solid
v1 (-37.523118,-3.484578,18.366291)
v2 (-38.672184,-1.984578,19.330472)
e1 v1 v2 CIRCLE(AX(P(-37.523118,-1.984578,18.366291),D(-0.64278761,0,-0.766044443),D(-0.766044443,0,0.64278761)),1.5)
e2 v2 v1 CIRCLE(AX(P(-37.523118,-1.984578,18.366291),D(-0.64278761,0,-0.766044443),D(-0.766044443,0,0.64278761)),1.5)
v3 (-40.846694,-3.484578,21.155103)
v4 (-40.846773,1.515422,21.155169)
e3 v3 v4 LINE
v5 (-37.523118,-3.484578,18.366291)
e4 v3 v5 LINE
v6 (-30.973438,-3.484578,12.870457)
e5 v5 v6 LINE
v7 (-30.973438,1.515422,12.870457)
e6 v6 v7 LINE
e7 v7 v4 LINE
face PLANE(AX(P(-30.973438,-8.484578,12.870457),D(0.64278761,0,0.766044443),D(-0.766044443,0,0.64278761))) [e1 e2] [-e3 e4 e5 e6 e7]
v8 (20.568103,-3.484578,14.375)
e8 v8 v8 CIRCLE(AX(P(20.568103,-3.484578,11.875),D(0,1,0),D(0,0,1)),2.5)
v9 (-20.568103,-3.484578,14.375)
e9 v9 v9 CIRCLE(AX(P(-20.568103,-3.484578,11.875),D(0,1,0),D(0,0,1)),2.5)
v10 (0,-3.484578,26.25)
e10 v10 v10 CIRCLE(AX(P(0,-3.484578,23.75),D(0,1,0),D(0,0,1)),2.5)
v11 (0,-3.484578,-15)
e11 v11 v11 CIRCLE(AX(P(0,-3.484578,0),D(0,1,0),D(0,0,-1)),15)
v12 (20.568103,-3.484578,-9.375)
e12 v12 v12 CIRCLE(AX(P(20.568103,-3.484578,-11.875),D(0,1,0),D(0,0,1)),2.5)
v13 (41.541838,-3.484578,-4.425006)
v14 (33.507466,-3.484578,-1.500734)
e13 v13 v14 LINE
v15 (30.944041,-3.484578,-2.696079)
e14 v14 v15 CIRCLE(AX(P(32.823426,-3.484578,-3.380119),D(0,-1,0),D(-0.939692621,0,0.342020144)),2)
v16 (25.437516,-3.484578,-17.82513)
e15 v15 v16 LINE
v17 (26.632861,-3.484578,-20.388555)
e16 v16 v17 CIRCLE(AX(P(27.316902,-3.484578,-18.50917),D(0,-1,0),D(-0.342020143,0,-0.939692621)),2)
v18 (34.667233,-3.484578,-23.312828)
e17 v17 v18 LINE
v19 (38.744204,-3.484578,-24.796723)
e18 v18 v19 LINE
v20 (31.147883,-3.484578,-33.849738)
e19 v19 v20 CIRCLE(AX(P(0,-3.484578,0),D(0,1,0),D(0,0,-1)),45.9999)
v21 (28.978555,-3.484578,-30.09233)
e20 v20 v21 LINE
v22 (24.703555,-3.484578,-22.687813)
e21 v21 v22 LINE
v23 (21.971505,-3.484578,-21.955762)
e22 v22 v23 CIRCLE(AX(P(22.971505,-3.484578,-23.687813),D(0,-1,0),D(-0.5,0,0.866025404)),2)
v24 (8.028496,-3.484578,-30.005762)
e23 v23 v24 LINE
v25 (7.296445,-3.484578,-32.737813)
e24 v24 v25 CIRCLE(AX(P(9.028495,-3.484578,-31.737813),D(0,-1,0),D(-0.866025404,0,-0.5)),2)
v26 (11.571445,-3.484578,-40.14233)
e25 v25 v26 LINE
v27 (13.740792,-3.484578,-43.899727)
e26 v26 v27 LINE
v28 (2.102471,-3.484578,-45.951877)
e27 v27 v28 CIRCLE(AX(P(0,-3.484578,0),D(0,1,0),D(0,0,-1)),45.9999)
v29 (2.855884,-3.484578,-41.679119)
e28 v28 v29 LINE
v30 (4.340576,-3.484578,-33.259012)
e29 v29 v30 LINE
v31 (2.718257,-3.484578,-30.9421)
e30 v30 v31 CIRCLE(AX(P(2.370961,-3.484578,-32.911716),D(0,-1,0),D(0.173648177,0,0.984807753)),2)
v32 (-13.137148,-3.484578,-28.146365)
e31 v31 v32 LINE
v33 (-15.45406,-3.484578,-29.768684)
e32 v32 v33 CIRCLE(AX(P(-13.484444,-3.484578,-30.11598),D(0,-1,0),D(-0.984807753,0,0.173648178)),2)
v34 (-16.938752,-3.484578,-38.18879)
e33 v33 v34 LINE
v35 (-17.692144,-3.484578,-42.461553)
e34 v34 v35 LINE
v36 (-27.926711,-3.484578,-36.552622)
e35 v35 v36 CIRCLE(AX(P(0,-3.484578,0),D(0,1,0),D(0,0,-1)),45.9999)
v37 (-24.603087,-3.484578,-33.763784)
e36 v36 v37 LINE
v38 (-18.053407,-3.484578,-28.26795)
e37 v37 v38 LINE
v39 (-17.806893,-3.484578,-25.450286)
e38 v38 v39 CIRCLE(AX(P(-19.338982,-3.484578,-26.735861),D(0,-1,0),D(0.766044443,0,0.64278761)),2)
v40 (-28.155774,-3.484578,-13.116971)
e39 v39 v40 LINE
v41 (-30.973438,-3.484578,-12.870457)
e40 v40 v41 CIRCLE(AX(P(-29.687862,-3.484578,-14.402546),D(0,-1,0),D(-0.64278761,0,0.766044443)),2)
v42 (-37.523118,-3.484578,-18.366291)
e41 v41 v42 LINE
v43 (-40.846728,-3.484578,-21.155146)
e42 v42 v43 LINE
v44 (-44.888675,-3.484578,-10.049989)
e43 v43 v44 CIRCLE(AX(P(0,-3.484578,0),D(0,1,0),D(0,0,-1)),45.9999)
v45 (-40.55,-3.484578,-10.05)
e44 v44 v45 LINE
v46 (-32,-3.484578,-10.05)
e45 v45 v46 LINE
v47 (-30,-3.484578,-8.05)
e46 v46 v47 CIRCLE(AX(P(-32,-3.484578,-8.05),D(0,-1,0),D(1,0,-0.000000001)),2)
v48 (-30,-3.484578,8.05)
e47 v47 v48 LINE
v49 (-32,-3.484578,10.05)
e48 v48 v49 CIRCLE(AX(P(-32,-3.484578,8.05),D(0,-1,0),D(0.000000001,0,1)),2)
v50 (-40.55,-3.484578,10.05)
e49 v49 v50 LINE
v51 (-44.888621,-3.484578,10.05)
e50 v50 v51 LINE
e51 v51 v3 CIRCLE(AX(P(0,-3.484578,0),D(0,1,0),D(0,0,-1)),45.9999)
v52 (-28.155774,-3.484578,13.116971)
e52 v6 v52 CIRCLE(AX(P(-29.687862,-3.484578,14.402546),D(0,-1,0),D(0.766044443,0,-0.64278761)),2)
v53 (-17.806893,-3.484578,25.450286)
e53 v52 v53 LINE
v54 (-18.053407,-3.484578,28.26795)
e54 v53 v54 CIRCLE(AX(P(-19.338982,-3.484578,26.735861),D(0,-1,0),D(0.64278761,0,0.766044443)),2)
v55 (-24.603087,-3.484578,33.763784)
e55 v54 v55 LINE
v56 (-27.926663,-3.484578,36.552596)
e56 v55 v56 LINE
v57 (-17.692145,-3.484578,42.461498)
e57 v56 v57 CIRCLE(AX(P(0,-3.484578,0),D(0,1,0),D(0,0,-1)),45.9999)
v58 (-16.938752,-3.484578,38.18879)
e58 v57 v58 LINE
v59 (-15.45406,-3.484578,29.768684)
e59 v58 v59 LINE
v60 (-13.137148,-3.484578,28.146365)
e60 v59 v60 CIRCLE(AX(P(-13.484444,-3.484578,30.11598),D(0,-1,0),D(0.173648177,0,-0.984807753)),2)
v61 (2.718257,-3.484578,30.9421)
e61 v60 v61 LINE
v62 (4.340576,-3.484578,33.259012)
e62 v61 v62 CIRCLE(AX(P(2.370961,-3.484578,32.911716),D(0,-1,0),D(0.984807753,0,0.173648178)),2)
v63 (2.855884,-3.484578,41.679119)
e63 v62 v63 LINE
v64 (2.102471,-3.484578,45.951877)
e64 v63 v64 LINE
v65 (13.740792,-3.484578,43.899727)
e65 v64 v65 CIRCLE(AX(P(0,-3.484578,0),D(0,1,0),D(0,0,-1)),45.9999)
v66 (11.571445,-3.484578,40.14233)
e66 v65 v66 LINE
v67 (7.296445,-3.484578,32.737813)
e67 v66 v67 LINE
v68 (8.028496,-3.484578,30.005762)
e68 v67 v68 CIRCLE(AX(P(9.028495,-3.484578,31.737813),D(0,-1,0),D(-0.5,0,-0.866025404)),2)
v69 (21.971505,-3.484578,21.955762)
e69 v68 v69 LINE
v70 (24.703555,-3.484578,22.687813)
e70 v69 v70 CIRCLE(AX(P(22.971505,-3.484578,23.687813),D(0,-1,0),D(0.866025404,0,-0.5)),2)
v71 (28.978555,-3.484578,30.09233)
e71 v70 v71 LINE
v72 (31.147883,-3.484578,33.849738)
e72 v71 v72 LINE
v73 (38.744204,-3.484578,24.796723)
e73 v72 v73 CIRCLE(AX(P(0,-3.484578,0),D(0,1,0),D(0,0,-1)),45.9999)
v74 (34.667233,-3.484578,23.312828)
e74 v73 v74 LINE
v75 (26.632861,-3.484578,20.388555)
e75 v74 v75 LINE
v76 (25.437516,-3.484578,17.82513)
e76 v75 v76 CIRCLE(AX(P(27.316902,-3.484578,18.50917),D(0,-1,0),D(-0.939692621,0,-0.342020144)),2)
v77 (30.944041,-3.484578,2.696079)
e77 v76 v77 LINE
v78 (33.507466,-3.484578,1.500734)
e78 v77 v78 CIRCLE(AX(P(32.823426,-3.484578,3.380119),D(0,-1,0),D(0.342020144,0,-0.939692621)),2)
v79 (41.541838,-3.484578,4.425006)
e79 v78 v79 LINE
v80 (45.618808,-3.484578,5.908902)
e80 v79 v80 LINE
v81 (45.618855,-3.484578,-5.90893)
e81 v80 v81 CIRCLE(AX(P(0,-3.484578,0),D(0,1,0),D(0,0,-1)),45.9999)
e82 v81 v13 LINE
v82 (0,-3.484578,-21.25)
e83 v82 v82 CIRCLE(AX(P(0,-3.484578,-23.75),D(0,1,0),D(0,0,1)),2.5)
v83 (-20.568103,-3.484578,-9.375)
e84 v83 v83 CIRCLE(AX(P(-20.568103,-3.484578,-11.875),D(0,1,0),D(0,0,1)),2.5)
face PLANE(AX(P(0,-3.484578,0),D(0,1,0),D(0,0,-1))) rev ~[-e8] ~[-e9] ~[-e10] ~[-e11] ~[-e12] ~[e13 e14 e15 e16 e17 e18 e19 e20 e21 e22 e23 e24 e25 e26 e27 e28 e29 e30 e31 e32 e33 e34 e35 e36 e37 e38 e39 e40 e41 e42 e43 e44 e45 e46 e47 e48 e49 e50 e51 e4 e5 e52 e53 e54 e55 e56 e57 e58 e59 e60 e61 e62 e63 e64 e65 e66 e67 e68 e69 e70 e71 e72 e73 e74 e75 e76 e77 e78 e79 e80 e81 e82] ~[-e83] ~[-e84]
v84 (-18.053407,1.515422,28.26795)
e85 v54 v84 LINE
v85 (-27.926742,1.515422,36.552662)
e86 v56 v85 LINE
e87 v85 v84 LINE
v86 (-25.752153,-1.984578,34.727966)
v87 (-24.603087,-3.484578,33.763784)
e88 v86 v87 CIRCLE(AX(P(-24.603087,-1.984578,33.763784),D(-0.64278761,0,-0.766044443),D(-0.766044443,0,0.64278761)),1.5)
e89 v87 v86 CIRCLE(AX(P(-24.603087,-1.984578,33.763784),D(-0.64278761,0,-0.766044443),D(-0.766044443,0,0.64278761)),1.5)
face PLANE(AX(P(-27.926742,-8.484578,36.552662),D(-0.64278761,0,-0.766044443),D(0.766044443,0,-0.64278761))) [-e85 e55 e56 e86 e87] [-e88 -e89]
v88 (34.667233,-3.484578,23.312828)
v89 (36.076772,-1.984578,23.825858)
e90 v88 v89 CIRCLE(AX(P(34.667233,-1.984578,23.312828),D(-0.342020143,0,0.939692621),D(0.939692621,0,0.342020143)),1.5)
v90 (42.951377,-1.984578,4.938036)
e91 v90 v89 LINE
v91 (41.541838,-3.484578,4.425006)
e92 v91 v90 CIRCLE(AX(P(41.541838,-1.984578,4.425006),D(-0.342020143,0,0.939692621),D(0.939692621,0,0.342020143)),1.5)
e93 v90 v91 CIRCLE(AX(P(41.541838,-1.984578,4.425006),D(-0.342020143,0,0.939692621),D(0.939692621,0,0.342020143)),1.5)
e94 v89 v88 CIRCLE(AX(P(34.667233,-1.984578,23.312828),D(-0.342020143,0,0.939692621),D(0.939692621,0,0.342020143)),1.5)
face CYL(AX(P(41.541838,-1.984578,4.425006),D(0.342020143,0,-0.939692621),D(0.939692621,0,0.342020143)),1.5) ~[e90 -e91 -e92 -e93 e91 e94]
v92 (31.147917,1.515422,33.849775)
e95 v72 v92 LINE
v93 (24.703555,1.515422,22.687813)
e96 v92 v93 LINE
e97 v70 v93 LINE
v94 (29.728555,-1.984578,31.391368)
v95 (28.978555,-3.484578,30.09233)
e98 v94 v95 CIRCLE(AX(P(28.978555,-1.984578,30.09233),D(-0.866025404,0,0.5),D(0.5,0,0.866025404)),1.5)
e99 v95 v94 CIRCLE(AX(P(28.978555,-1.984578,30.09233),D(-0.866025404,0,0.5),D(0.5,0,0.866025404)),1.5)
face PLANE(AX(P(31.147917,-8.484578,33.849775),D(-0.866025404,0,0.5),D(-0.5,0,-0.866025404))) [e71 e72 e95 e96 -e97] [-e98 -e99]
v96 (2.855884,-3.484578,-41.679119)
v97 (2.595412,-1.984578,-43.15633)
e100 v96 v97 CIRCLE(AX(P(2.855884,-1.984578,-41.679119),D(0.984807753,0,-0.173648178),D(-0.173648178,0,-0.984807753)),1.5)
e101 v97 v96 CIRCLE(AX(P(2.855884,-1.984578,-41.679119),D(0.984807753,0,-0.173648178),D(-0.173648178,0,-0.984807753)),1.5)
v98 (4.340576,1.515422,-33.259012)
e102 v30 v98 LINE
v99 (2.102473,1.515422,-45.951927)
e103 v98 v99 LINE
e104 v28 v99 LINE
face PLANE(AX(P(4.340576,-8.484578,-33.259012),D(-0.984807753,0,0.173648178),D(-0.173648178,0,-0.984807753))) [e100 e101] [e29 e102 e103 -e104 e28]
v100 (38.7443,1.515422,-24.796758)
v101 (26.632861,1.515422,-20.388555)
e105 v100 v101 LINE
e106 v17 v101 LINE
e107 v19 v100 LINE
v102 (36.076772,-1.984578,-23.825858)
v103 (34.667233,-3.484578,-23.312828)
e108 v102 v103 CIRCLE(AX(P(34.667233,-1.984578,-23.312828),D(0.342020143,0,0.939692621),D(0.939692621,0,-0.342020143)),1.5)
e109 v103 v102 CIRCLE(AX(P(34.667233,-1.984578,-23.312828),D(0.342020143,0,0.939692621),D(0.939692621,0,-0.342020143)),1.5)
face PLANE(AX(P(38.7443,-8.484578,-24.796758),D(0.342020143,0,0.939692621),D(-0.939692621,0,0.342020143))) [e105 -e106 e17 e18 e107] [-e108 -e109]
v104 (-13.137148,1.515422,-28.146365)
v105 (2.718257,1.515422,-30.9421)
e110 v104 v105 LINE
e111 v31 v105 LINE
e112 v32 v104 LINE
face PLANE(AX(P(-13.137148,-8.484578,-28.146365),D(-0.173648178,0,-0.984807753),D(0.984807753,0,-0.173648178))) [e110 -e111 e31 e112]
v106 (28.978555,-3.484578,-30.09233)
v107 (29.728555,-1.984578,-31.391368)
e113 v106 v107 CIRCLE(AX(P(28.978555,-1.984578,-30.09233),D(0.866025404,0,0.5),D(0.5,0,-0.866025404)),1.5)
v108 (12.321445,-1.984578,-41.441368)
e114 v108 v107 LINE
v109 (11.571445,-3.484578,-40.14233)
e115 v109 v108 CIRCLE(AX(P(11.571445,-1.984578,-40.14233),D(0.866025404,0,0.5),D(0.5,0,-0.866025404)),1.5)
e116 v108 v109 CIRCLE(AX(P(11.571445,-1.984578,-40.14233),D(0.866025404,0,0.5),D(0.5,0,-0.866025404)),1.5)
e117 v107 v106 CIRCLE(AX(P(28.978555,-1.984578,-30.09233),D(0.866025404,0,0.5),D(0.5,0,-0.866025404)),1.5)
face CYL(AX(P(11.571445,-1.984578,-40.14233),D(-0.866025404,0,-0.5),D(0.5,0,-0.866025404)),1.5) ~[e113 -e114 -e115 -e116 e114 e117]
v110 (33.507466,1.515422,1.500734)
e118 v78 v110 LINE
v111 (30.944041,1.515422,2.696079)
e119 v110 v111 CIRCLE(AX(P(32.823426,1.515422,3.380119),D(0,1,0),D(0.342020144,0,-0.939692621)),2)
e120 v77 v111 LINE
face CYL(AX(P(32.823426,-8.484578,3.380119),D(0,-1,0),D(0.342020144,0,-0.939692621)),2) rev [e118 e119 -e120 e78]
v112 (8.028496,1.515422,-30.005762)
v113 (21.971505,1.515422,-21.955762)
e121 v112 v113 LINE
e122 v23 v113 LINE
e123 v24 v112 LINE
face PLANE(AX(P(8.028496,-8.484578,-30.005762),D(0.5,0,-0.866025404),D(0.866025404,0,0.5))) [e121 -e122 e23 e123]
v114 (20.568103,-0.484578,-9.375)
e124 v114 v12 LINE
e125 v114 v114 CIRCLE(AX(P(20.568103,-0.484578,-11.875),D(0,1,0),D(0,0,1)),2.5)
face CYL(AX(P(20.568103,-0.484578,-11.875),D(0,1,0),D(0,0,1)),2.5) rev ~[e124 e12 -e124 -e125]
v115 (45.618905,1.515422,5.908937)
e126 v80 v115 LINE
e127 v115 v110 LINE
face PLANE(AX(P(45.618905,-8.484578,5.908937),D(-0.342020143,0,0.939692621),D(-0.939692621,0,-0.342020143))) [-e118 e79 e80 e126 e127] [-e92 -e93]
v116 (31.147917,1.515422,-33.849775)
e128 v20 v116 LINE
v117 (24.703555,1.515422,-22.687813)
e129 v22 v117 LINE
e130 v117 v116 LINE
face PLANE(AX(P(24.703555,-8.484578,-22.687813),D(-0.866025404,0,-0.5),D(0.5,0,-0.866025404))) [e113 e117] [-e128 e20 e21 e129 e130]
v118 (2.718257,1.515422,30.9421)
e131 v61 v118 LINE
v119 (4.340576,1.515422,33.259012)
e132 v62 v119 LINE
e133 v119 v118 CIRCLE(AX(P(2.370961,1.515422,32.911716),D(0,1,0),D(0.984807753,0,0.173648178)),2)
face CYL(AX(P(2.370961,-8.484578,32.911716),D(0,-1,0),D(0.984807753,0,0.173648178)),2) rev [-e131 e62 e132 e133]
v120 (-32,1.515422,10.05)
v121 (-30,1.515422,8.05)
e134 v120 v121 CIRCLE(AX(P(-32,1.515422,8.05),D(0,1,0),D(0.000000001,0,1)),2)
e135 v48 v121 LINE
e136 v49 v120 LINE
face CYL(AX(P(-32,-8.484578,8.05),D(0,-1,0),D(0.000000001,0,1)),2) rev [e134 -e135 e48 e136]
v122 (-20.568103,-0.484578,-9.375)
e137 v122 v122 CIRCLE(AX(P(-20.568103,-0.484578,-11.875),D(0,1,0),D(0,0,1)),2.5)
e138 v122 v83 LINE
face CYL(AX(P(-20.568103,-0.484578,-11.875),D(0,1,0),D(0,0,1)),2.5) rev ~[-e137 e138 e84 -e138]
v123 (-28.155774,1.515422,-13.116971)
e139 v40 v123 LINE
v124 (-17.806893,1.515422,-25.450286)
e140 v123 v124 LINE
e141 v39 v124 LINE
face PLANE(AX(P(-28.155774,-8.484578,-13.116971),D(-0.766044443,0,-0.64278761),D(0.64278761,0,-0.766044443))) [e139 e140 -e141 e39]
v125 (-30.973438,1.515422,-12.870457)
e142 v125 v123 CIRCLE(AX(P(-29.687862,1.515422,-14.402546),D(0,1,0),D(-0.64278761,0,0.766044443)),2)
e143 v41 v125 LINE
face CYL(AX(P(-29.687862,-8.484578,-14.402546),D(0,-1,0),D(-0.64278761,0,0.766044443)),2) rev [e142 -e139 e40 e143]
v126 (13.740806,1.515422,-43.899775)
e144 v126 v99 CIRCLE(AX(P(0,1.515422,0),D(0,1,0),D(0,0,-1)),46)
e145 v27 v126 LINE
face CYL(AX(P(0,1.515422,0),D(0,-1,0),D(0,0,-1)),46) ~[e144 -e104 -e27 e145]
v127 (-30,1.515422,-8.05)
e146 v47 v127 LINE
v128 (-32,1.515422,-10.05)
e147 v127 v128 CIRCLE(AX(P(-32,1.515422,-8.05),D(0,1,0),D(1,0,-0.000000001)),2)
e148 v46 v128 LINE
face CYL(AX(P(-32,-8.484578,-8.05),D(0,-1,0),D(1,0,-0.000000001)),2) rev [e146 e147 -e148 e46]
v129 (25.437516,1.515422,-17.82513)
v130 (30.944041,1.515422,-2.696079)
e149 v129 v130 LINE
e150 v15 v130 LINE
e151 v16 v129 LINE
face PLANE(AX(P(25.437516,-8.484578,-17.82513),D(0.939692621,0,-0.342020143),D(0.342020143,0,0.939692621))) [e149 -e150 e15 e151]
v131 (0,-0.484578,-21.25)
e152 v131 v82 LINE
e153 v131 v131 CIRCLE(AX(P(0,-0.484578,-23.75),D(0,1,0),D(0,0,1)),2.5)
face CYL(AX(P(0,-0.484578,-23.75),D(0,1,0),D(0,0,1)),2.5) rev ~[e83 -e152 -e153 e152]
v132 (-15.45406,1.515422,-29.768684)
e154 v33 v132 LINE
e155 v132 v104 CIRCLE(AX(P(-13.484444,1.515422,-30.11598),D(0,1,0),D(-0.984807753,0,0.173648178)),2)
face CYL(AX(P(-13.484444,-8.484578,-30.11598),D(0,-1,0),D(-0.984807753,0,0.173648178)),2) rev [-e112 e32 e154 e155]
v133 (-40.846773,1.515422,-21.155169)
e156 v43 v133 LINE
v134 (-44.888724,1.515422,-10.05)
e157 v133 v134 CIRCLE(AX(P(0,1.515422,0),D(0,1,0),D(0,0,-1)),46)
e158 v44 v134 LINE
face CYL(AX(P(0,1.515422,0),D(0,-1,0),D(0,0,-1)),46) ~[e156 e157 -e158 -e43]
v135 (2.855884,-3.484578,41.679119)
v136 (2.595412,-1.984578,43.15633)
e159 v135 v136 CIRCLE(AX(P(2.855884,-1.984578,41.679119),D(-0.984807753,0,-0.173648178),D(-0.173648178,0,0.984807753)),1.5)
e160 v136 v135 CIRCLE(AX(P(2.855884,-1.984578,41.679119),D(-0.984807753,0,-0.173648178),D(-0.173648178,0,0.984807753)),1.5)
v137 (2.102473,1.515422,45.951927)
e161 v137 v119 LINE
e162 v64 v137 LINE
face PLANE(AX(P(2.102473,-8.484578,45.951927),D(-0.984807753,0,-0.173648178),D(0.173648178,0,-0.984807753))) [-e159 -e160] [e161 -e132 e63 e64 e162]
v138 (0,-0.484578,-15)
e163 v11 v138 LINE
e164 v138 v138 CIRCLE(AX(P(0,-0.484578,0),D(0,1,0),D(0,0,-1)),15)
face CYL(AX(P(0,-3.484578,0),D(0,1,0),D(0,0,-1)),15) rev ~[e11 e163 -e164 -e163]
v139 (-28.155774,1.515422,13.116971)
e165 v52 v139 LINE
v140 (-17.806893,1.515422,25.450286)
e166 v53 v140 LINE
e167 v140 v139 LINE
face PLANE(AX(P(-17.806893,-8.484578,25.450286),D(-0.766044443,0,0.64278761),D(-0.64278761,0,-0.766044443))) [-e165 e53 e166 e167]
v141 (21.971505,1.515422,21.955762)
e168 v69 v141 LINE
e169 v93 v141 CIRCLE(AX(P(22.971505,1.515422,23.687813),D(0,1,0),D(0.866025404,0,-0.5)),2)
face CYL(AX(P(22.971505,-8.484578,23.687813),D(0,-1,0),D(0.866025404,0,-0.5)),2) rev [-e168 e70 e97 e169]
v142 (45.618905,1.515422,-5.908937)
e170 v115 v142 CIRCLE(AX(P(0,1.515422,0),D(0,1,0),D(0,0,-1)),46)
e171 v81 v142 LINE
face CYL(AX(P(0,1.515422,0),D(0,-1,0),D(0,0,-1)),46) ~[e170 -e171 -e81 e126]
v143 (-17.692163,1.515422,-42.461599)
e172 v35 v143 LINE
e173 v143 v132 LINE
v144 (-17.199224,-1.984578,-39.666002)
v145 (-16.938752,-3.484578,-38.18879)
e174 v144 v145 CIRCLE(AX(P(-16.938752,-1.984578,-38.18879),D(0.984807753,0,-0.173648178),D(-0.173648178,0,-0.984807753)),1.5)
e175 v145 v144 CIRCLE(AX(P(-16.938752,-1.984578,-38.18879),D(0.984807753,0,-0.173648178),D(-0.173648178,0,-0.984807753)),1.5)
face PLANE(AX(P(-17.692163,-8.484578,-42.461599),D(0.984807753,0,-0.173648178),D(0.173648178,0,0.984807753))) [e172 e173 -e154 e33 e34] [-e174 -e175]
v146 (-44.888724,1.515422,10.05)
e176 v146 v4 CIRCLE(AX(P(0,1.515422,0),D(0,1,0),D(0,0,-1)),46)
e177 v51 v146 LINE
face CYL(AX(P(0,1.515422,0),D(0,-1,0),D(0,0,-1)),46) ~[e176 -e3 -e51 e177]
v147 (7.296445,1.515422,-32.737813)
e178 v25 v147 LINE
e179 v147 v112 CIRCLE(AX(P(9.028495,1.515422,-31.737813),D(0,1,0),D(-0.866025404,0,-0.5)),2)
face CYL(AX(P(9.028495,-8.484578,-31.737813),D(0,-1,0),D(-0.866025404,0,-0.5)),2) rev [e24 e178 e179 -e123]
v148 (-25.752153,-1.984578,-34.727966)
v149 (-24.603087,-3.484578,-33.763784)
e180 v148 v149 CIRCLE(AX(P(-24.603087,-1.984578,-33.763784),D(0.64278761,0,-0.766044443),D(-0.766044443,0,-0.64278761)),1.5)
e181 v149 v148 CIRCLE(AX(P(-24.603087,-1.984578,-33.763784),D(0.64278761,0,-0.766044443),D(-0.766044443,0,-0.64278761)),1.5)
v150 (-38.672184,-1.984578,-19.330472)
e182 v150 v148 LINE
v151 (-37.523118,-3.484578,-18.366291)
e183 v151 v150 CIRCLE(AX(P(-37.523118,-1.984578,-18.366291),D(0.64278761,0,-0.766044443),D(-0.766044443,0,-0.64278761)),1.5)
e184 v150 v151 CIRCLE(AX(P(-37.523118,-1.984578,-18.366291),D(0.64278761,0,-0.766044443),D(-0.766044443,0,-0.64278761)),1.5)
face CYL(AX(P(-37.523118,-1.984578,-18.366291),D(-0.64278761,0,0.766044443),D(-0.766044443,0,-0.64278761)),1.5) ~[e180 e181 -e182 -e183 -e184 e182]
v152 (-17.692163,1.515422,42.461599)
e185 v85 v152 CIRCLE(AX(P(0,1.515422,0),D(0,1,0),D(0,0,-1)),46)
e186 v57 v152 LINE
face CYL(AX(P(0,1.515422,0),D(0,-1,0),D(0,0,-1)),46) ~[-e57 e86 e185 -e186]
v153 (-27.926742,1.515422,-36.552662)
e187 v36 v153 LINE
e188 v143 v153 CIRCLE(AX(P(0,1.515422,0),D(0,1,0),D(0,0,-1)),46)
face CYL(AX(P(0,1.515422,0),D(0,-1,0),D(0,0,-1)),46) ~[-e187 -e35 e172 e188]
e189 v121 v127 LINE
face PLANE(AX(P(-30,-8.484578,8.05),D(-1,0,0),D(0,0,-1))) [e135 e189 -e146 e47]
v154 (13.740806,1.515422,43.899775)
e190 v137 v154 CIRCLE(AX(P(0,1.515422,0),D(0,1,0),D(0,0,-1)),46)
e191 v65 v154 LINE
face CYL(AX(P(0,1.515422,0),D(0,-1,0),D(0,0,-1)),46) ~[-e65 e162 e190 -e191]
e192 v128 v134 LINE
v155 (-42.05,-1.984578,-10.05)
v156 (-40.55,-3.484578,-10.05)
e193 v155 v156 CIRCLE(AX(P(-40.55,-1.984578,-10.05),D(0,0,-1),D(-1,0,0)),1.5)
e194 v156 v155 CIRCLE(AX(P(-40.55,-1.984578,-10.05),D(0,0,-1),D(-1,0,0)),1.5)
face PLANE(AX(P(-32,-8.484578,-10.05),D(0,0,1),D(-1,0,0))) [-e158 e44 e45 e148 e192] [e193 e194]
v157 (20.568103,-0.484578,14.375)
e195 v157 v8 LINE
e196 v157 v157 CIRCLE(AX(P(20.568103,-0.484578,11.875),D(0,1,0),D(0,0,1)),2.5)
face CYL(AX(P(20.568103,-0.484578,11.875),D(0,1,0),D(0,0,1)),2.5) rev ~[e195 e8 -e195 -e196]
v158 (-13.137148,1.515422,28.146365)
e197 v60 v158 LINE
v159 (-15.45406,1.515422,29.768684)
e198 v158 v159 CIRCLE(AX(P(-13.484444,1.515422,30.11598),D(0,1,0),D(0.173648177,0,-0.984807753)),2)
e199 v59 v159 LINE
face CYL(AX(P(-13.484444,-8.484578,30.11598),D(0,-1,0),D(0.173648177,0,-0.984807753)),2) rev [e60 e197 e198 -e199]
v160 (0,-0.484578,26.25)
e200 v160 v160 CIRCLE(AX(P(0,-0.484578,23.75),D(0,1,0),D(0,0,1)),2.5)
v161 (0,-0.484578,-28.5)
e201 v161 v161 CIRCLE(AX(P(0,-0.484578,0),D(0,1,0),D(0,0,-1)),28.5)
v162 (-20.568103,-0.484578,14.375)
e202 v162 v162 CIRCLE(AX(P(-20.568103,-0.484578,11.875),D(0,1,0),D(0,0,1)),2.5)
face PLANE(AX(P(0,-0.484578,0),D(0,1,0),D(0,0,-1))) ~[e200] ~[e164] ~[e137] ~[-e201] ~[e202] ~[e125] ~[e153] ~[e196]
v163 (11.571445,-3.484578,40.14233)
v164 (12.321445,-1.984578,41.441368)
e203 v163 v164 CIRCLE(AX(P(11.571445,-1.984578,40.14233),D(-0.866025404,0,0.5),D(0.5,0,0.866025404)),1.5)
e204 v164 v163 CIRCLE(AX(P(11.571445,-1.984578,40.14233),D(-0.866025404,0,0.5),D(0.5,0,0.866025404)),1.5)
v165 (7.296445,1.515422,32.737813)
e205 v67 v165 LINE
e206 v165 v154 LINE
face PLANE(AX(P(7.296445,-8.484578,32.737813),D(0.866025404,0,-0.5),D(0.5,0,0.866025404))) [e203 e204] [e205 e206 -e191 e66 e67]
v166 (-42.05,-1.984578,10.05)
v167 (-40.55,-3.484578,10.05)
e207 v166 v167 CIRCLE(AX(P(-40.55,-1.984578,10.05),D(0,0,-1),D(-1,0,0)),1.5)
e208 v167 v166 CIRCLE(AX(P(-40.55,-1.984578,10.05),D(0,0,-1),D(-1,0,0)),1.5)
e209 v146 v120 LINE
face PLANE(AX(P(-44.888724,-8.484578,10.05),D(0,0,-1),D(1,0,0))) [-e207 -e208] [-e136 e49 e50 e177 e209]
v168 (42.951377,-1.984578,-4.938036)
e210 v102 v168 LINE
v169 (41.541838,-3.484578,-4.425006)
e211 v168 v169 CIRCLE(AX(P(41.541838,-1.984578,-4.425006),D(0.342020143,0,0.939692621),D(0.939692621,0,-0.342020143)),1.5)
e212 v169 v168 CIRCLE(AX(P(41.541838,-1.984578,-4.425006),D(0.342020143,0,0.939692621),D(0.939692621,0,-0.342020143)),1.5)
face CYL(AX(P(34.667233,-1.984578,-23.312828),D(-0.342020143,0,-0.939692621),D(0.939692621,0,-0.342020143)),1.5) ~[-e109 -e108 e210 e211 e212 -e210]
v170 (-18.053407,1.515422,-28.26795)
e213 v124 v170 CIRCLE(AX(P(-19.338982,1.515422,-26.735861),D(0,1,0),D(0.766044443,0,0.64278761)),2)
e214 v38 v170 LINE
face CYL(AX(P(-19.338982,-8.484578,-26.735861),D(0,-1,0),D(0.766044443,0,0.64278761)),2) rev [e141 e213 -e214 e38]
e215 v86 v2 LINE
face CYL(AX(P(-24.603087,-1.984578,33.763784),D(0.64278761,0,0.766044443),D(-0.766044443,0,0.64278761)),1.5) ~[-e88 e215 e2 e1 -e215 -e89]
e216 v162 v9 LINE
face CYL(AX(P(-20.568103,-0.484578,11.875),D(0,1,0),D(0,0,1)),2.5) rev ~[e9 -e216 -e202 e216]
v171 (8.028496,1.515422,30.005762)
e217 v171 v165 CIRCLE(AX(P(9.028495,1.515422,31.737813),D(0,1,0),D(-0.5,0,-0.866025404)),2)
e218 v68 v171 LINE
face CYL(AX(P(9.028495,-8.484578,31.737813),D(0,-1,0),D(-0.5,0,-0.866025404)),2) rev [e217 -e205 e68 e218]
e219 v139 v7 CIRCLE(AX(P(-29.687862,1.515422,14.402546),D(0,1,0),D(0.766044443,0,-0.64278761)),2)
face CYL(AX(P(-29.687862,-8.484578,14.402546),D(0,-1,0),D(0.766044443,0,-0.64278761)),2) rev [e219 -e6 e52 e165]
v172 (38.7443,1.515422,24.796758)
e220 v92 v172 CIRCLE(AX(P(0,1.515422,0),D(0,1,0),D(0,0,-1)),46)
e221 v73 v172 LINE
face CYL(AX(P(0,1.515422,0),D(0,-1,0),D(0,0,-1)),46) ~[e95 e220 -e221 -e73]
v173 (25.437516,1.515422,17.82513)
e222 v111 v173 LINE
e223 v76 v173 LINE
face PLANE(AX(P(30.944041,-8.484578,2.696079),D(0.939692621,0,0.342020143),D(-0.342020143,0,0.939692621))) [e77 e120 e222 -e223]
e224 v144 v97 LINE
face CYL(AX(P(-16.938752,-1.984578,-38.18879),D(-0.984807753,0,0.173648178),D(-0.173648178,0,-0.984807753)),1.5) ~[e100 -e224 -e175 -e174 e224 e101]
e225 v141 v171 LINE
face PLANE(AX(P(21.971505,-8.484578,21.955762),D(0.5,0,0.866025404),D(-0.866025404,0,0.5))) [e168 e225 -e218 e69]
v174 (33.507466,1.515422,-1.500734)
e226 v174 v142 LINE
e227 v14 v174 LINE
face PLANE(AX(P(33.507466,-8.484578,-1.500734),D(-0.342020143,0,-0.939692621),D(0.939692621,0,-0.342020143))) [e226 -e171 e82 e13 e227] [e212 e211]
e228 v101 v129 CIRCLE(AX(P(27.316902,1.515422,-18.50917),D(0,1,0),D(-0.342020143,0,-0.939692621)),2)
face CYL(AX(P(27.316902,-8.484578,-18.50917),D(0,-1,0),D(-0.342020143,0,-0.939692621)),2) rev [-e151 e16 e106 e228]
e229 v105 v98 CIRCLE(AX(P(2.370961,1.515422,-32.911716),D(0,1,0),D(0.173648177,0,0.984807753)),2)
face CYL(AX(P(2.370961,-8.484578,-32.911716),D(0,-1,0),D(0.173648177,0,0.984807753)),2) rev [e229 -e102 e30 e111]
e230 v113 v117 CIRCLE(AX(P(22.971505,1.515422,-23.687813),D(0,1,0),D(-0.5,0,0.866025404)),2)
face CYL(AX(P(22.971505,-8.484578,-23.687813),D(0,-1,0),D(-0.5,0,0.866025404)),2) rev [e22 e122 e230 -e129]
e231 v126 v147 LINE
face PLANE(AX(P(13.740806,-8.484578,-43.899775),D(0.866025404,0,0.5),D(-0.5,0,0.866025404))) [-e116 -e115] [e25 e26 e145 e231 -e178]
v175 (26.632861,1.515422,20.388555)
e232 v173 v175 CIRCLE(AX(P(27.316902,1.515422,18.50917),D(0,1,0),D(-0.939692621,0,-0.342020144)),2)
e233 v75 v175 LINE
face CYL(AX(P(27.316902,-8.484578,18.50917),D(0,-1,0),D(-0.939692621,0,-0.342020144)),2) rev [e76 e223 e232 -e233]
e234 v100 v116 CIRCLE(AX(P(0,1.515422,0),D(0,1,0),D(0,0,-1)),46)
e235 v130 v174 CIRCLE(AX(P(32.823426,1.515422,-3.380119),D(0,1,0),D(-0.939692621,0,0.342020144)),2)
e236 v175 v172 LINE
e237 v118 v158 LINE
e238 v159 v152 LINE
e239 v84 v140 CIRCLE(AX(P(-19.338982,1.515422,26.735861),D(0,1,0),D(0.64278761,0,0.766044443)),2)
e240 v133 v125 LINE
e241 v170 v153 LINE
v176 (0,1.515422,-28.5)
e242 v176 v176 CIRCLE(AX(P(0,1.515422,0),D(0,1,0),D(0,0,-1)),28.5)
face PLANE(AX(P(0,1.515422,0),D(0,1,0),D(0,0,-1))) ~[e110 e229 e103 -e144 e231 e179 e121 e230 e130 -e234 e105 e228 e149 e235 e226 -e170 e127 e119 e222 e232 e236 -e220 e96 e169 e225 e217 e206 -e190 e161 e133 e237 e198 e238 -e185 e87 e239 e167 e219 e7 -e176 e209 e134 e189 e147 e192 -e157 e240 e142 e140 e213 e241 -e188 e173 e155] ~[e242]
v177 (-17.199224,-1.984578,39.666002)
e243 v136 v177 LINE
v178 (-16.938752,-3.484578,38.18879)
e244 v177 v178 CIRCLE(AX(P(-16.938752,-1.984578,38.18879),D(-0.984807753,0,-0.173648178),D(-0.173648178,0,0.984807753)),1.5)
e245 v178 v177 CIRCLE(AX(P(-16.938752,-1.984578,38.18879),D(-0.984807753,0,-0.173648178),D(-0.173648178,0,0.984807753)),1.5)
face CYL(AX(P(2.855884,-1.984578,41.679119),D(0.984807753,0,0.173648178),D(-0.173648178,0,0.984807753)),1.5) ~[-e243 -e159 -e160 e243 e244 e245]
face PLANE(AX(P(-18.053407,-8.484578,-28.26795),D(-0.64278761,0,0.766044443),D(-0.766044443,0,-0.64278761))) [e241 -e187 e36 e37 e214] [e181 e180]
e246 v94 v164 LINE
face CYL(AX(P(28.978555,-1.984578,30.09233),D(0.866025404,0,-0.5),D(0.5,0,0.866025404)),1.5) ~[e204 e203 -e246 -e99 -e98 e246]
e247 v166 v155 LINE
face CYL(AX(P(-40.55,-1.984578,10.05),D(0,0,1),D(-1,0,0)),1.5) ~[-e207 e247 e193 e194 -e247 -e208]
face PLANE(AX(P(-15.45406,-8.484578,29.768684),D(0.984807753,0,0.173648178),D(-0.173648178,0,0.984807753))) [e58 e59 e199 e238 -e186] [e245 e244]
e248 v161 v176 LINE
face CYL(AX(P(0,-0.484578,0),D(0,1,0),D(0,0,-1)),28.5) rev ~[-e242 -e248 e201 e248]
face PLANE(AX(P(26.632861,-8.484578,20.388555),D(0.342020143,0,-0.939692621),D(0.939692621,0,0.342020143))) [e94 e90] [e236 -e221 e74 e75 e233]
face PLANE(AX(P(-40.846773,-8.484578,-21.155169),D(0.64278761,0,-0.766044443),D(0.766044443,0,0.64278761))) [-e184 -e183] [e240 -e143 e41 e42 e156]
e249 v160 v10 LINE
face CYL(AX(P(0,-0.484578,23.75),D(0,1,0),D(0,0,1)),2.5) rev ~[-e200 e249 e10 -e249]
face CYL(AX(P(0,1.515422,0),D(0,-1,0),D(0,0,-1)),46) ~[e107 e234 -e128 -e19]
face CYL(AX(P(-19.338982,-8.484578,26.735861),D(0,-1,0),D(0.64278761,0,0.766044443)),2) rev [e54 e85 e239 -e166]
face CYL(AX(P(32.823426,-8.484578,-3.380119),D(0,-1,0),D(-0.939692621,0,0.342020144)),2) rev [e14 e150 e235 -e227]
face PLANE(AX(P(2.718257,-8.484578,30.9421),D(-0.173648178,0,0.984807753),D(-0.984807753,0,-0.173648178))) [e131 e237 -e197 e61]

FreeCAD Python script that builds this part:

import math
import FreeCAD as App
import Part
import Sketcher

V = App.Vector
Q = App.Units.Quantity


def add_polygon(sketch, points):
    """Adds a closed chain of lines whose ends are joined by coincident constraints."""
    first, n = sketch.GeometryCount, len(points)
    for a, b in zip(points, points[1:] + points[:1]):
        sketch.addGeometry(Part.LineSegment(App.Vector(*a, 0), App.Vector(*b, 0)), False)
    for i in range(n):
        sketch.addConstraint(Sketcher.Constraint("Coincident", first + i, 2, first + (i + 1) % n, 1))

doc = App.newDocument("Part")
params = doc.addObject("Spreadsheet::Sheet", "Params")
for row, (alias, value) in enumerate([
    ("sketch1_height", "3 mm"),
    ("sketch1_height2", "2 mm"),
    ("sketch1_width", "13.5 mm"),
    ("sketch1_width2", "17.5 mm"),
    ("revolution_angle", "360 deg"),
    ("sketch2_diameter", "5 mm"),
    ("pocket1_length", "10 mm"),
    ("sketch3_radius", "46 mm"),
    ("sketch3_radius2", "2 mm"),
    ("sketch3_height", "16.1 mm"),
    ("sketch3_length", "16.1 mm"),
    ("pocket2_length", "10 mm"),
    ("sketch4_diameter", "3 mm"),
    ("pad1_length", "20.1 mm"),
    ("pocket3_length", "2 mm"),
], start=1):
    params.set(f"A{row}", alias)
    params.set(f"B{row}", "=" + value)
    params.setAlias(f"B{row}", alias)

body = doc.addObject("PartDesign::Body", "Body")

# Sketch on XY plane
sketch1 = body.newObject("Sketcher::SketchObject", "Sketch")
sketch1.AttachmentSupport = (doc.getObject("XY_Plane"), [""])
sketch1.MapMode = "FlatFace"
add_polygon(sketch1, [(-15, -3.5), (-15, -0.5), (-28.5, -0.5), (-28.5, 1.5), (-46, 1.5), (-46, -0.5), (-46, -3.5), (-46, -5.5), (-28.5, -5.5), (-28.5, -3.5)])  # lines 0-9
sketch1.addConstraint(Sketcher.Constraint("Vertical", 0))
sketch1.addConstraint(Sketcher.Constraint("Horizontal", 1))
sketch1.addConstraint(Sketcher.Constraint("Vertical", 2))
sketch1.addConstraint(Sketcher.Constraint("Horizontal", 3))
sketch1.addConstraint(Sketcher.Constraint("Vertical", 4))
sketch1.addConstraint(Sketcher.Constraint("Horizontal", 7))
sketch1.addConstraint(Sketcher.Constraint("Vertical", 8))
sketch1.addConstraint(Sketcher.Constraint("Horizontal", 9))
sketch1.addConstraint(Sketcher.Constraint("Horizontal", 1, 2, 4, 2))
sketch1.addConstraint(Sketcher.Constraint("Horizontal", 5, 2, 8, 2))
sketch1.addConstraint(Sketcher.Constraint("Vertical", 4, 2, 6, 2))
sketch1.addConstraint(Sketcher.Constraint("Vertical", 2, 2, 7, 2))
sketch1.addConstraint(Sketcher.Constraint("Equal", 4, 8))
sketch1.addConstraint(Sketcher.Constraint("DistanceY", 0, 1, 0, 2, 3.0))
sketch1.addConstraint(Sketcher.Constraint("DistanceY", 2, 1, 2, 2, 2.0))
sketch1.addConstraint(Sketcher.Constraint("DistanceX", 1, 2, 1, 1, 13.5))
sketch1.addConstraint(Sketcher.Constraint("DistanceX", 3, 2, 3, 1, 17.5))
sketch1.addConstraint(Sketcher.Constraint("DistanceX", 0, 2, -1, 1, 15.0))
sketch1.addConstraint(Sketcher.Constraint("DistanceX", 5, 2, -1, 1, 45.9999))
sketch1.addConstraint(Sketcher.Constraint("DistanceY", 0, 2, -1, 1, 0.484578))
sketch1.setExpression("Constraints[23]", "Params.sketch1_height")
sketch1.setExpression("Constraints[24]", "Params.sketch1_height2")
sketch1.setExpression("Constraints[25]", "Params.sketch1_width")
sketch1.setExpression("Constraints[26]", "Params.sketch1_width2")
revolution = body.newObject("PartDesign::Revolution", "Revolution")
revolution.Profile = sketch1
revolution.ReferenceAxis = (sketch1, ["V_Axis"])
revolution.setExpression("Angle", "Params.revolution_angle")

# Sketch on XZ plane
sketch2 = body.newObject("Sketcher::SketchObject", "Sketch001")
sketch2.AttachmentSupport = (doc.getObject("XZ_Plane"), [""])
sketch2.MapMode = "FlatFace"
sketch2.AttachmentOffset = App.Placement(V(0, 0, 0.484578), App.Rotation())
sketch2.addGeometry(Part.Circle(V(0, -23.8, 0), V(0, 0, 1), 2.5), False)
sketch2.addGeometry(Part.Circle(V(20.6, -11.9, 0), V(0, 0, 1), 2.5), False)
sketch2.addGeometry(Part.Circle(V(20.6, 11.9, 0), V(0, 0, 1), 2.5), False)
sketch2.addGeometry(Part.Circle(V(0, 23.8, 0), V(0, 0, 1), 2.5), False)
sketch2.addGeometry(Part.Circle(V(-20.6, 11.9, 0), V(0, 0, 1), 2.5), False)
sketch2.addGeometry(Part.Circle(V(-20.6, -11.9, 0), V(0, 0, 1), 2.5), False)
sketch2.addConstraint(Sketcher.Constraint("Equal", 0, 1))
sketch2.addConstraint(Sketcher.Constraint("Equal", 1, 2))
sketch2.addConstraint(Sketcher.Constraint("Equal", 2, 3))
sketch2.addConstraint(Sketcher.Constraint("Equal", 3, 4))
sketch2.addConstraint(Sketcher.Constraint("Equal", 4, 5))
sketch2.addConstraint(Sketcher.Constraint("Symmetric", 0, 3, 3, 3, -1, 1))
sketch2.addConstraint(Sketcher.Constraint("Symmetric", 1, 3, 4, 3, -1, 1))
sketch2.addConstraint(Sketcher.Constraint("Symmetric", 2, 3, 5, 3, -1, 1))
sketch2.addConstraint(Sketcher.Constraint("Symmetric", 2, 3, 4, 3, -2))
sketch2.addConstraint(Sketcher.Constraint("PointOnObject", 0, 3, -2))
sketch2.addConstraint(Sketcher.Constraint("Diameter", 0, 5.0))
sketch2.addConstraint(Sketcher.Constraint("DistanceY", 0, 3, 3, 3, 47.5))
sketch2.addConstraint(Sketcher.Constraint("DistanceY", 1, 3, 2, 3, 23.75))
sketch2.addConstraint(Sketcher.Constraint("DistanceX", -1, 1, 1, 3, 20.568103))
sketch2.setExpression("Constraints[10]", "Params.sketch2_diameter")
pocket1 = body.newObject("PartDesign::Pocket", "Pocket")
pocket1.Profile = sketch2
pocket1.setExpression("Length", "Params.pocket1_length")
pocket1.Reversed = True

# Sketch on XZ plane
sketch3 = body.newObject("Sketcher::SketchObject", "Sketch002")
sketch3.AttachmentSupport = (doc.getObject("XZ_Plane"), [""])
sketch3.MapMode = "FlatFace"
sketch3.AttachmentOffset = App.Placement(V(0, 0, 8.484578), App.Rotation())
sketch3.addGeometry(Part.LineSegment(V(4.3, -33.3, 0), V(2.1, -46, 0)), False)
sketch3.addGeometry(Part.ArcOfCircle(Part.Circle(V(0, 0, 0), V(0, 0, 1), 46), math.radians(-113), math.radians(-87)), False)
sketch3.addGeometry(Part.LineSegment(V(-17.7, -42.5, 0), V(-15.5, -29.8, 0)), False)
sketch3.addGeometry(Part.ArcOfCircle(Part.Circle(V(-13.5, -30.1, 0), V(0, 0, 1), 2), math.radians(80), math.radians(170)), False)
sketch3.addGeometry(Part.LineSegment(V(-13.1, -28.1, 0), V(2.7, -30.9, 0)), False)
sketch3.addGeometry(Part.ArcOfCircle(Part.Circle(V(2.4, -32.9, 0), V(0, 0, 1), 2), math.radians(-10), math.radians(80)), False)
sketch3.addGeometry(Part.LineSegment(V(8, -30, 0), V(22, -22, 0)), False)
sketch3.addGeometry(Part.ArcOfCircle(Part.Circle(V(23, -23.7, 0), V(0, 0, 1), 2), math.radians(30), math.radians(120)), False)
sketch3.addGeometry(Part.LineSegment(V(24.7, -22.7, 0), V(31.1, -33.8, 0)), False)
sketch3.addGeometry(Part.ArcOfCircle(Part.Circle(V(0, 0, 0), V(0, 0, 1), 46), math.radians(-73), math.radians(-47)), False)
sketch3.addGeometry(Part.LineSegment(V(13.7, -43.9, 0), V(7.3, -32.7, 0)), False)
sketch3.addGeometry(Part.ArcOfCircle(Part.Circle(V(9, -31.7, 0), V(0, 0, 1), 2), math.radians(120), math.radians(210)), False)
sketch3.addGeometry(Part.ArcOfCircle(Part.Circle(V(0, 0, 0), V(0, 0, 1), 46), math.radians(-33), math.radians(-7)), False)
sketch3.addGeometry(Part.LineSegment(V(38.7, -24.8, 0), V(26.6, -20.4, 0)), False)
sketch3.addGeometry(Part.ArcOfCircle(Part.Circle(V(27.3, -18.5, 0), V(0, 0, 1), 2), math.radians(160), math.radians(250)), False)
sketch3.addGeometry(Part.LineSegment(V(25.4, -17.8, 0), V(30.9, -2.7, 0)), False)
sketch3.addGeometry(Part.ArcOfCircle(Part.Circle(V(32.8, -3.4, 0), V(0, 0, 1), 2), math.radians(70), math.radians(160)), False)
sketch3.addGeometry(Part.LineSegment(V(33.5, -1.5, 0), V(45.6, -5.9, 0)), False)
sketch3.addGeometry(Part.ArcOfCircle(Part.Circle(V(0, 0, 0), V(0, 0, 1), 46), math.radians(7), math.radians(33)), False)
sketch3.addGeometry(Part.LineSegment(V(45.6, 5.9, 0), V(33.5, 1.5, 0)), False)
sketch3.addGeometry(Part.ArcOfCircle(Part.Circle(V(32.8, 3.4, 0), V(0, 0, 1), 2), math.radians(-160), math.radians(-70)), False)
sketch3.addGeometry(Part.LineSegment(V(30.9, 2.7, 0), V(25.4, 17.8, 0)), False)
sketch3.addGeometry(Part.ArcOfCircle(Part.Circle(V(27.3, 18.5, 0), V(0, 0, 1), 2), math.radians(110), math.radians(200)), False)
sketch3.addGeometry(Part.LineSegment(V(26.6, 20.4, 0), V(38.7, 24.8, 0)), False)
sketch3.addGeometry(Part.ArcOfCircle(Part.Circle(V(0, 0, 0), V(0, 0, 1), 46), math.radians(47), math.radians(73)), False)
sketch3.addGeometry(Part.LineSegment(V(31.1, 33.8, 0), V(24.7, 22.7, 0)), False)
sketch3.addGeometry(Part.ArcOfCircle(Part.Circle(V(23, 23.7, 0), V(0, 0, 1), 2), math.radians(-120), math.radians(-30)), False)
sketch3.addGeometry(Part.LineSegment(V(22, 22, 0), V(8, 30, 0)), False)
sketch3.addGeometry(Part.ArcOfCircle(Part.Circle(V(9, 31.7, 0), V(0, 0, 1), 2), math.radians(150), math.radians(240)), False)
sketch3.addGeometry(Part.LineSegment(V(7.3, 32.7, 0), V(13.7, 43.9, 0)), False)
sketch3.addGeometry(Part.ArcOfCircle(Part.Circle(V(0, 0, 0), V(0, 0, 1), 46), math.radians(87), math.radians(113)), False)
sketch3.addGeometry(Part.LineSegment(V(2.1, 46, 0), V(4.3, 33.3, 0)), False)
sketch3.addGeometry(Part.ArcOfCircle(Part.Circle(V(2.4, 32.9, 0), V(0, 0, 1), 2), math.radians(-80), math.radians(10)), False)
sketch3.addGeometry(Part.LineSegment(V(2.7, 30.9, 0), V(-13.1, 28.1, 0)), False)
sketch3.addGeometry(Part.ArcOfCircle(Part.Circle(V(-13.5, 30.1, 0), V(0, 0, 1), 2), math.radians(-170), math.radians(-80)), False)
sketch3.addGeometry(Part.LineSegment(V(-15.5, 29.8, 0), V(-17.7, 42.5, 0)), False)
sketch3.addGeometry(Part.LineSegment(V(-31, 12.9, 0), V(-40.8, 21.2, 0)), False)
sketch3.addGeometry(Part.ArcOfCircle(Part.Circle(V(0, 0, 0), V(0, 0, 1), 46), math.radians(127), math.radians(153)), False)
sketch3.addGeometry(Part.LineSegment(V(-27.9, 36.6, 0), V(-18.1, 28.3, 0)), False)
sketch3.addGeometry(Part.ArcOfCircle(Part.Circle(V(-19.3, 26.7, 0), V(0, 0, 1), 2), math.radians(-40), math.radians(50)), False)
sketch3.addGeometry(Part.LineSegment(V(-17.8, 25.5, 0), V(-28.2, 13.1, 0)), False)
sketch3.addGeometry(Part.ArcOfCircle(Part.Circle(V(-29.7, 14.4, 0), V(0, 0, 1), 2), math.radians(-130), math.radians(-40)), False)
sketch3.addGeometry(Part.LineSegment(V(-32, -10.1, 0), V(-44.9, -10.1, 0)), False)
sketch3.addGeometry(Part.ArcOfCircle(Part.Circle(V(0, 0, 0), V(0, 0, 1), 46), math.radians(167), math.radians(193)), False)
sketch3.addGeometry(Part.LineSegment(V(-44.9, 10.1, 0), V(-32, 10.1, 0)), False)
sketch3.addGeometry(Part.ArcOfCircle(Part.Circle(V(-32, 8, 0), V(0, 0, 1), 2), math.radians(0), math.radians(90)), False)
sketch3.addGeometry(Part.LineSegment(V(-30, 8.1, 0), V(-30, -8.1, 0)), False)
sketch3.addGeometry(Part.ArcOfCircle(Part.Circle(V(-32, -8, 0), V(0, 0, 1), 2), math.radians(-90), math.radians(0)), False)
sketch3.addGeometry(Part.LineSegment(V(-18.1, -28.3, 0), V(-27.9, -36.6, 0)), False)
sketch3.addGeometry(Part.ArcOfCircle(Part.Circle(V(0, 0, 0), V(0, 0, 1), 46), math.radians(-153), math.radians(-127)), False)
sketch3.addGeometry(Part.LineSegment(V(-40.8, -21.2, 0), V(-31, -12.9, 0)), False)
sketch3.addGeometry(Part.ArcOfCircle(Part.Circle(V(-29.7, -14.4, 0), V(0, 0, 1), 2), math.radians(40), math.radians(130)), False)
sketch3.addGeometry(Part.LineSegment(V(-28.2, -13.1, 0), V(-17.8, -25.5, 0)), False)
sketch3.addGeometry(Part.ArcOfCircle(Part.Circle(V(-19.3, -26.7, 0), V(0, 0, 1), 2), math.radians(-50), math.radians(40)), False)
sketch3.addConstraint(Sketcher.Constraint("Coincident", 0, 2, 1, 2))
sketch3.addConstraint(Sketcher.Constraint("Coincident", 1, 1, 2, 1))
sketch3.addConstraint(Sketcher.Constraint("Tangent", 2, 2, 3, 2))
sketch3.addConstraint(Sketcher.Constraint("Tangent", 3, 1, 4, 1))
sketch3.addConstraint(Sketcher.Constraint("Tangent", 4, 2, 5, 2))
sketch3.addConstraint(Sketcher.Constraint("Tangent", 5, 1, 0, 1))
sketch3.addConstraint(Sketcher.Constraint("Tangent", 6, 2, 7, 2))
sketch3.addConstraint(Sketcher.Constraint("Tangent", 7, 1, 8, 1))
sketch3.addConstraint(Sketcher.Constraint("Coincident", 8, 2, 9, 2))
sketch3.addConstraint(Sketcher.Constraint("Coincident", 9, 1, 10, 1))
sketch3.addConstraint(Sketcher.Constraint("Tangent", 10, 2, 11, 2))
sketch3.addConstraint(Sketcher.Constraint("Tangent", 11, 1, 6, 1))
sketch3.addConstraint(Sketcher.Constraint("Coincident", 12, 1, 13, 1))
sketch3.addConstraint(Sketcher.Constraint("Tangent", 13, 2, 14, 2))
sketch3.addConstraint(Sketcher.Constraint("Tangent", 14, 1, 15, 1))
sketch3.addConstraint(Sketcher.Constraint("Tangent", 15, 2, 16, 2))
sketch3.addConstraint(Sketcher.Constraint("Tangent", 16, 1, 17, 1))
sketch3.addConstraint(Sketcher.Constraint("Coincident", 17, 2, 12, 2))
sketch3.addConstraint(Sketcher.Constraint("Coincident", 18, 1, 19, 1))
sketch3.addConstraint(Sketcher.Constraint("Tangent", 19, 2, 20, 2))
sketch3.addConstraint(Sketcher.Constraint("Tangent", 20, 1, 21, 1))
sketch3.addConstraint(Sketcher.Constraint("Tangent", 21, 2, 22, 2))
sketch3.addConstraint(Sketcher.Constraint("Tangent", 22, 1, 23, 1))
sketch3.addConstraint(Sketcher.Constraint("Coincident", 23, 2, 18, 2))
sketch3.addConstraint(Sketcher.Constraint("Coincident", 24, 1, 25, 1))
sketch3.addConstraint(Sketcher.Constraint("Tangent", 25, 2, 26, 2))
sketch3.addConstraint(Sketcher.Constraint("Tangent", 26, 1, 27, 1))
sketch3.addConstraint(Sketcher.Constraint("Tangent", 27, 2, 28, 2))
sketch3.addConstraint(Sketcher.Constraint("Tangent", 28, 1, 29, 1))
sketch3.addConstraint(Sketcher.Constraint("Coincident", 29, 2, 24, 2))
sketch3.addConstraint(Sketcher.Constraint("Coincident", 30, 1, 31, 1))
sketch3.addConstraint(Sketcher.Constraint("Tangent", 31, 2, 32, 2))
sketch3.addConstraint(Sketcher.Constraint("Tangent", 32, 1, 33, 1))
sketch3.addConstraint(Sketcher.Constraint("Tangent", 33, 2, 34, 2))
sketch3.addConstraint(Sketcher.Constraint("Tangent", 34, 1, 35, 1))
sketch3.addConstraint(Sketcher.Constraint("Coincident", 35, 2, 30, 2))
sketch3.addConstraint(Sketcher.Constraint("Coincident", 36, 2, 37, 2))
sketch3.addConstraint(Sketcher.Constraint("Coincident", 37, 1, 38, 1))
sketch3.addConstraint(Sketcher.Constraint("Tangent", 38, 2, 39, 2))
sketch3.addConstraint(Sketcher.Constraint("Tangent", 39, 1, 40, 1))
sketch3.addConstraint(Sketcher.Constraint("Tangent", 40, 2, 41, 2))
sketch3.addConstraint(Sketcher.Constraint("Tangent", 41, 1, 36, 1))
sketch3.addConstraint(Sketcher.Constraint("Coincident", 42, 2, 43, 2))
sketch3.addConstraint(Sketcher.Constraint("Coincident", 43, 1, 44, 1))
sketch3.addConstraint(Sketcher.Constraint("Tangent", 44, 2, 45, 2))
sketch3.addConstraint(Sketcher.Constraint("Tangent", 45, 1, 46, 1))
sketch3.addConstraint(Sketcher.Constraint("Tangent", 46, 2, 47, 2))
sketch3.addConstraint(Sketcher.Constraint("Tangent", 47, 1, 42, 1))
sketch3.addConstraint(Sketcher.Constraint("Coincident", 48, 2, 49, 2))
sketch3.addConstraint(Sketcher.Constraint("Coincident", 49, 1, 50, 1))
sketch3.addConstraint(Sketcher.Constraint("Tangent", 50, 2, 51, 2))
sketch3.addConstraint(Sketcher.Constraint("Tangent", 51, 1, 52, 1))
sketch3.addConstraint(Sketcher.Constraint("Tangent", 52, 2, 53, 2))
sketch3.addConstraint(Sketcher.Constraint("Tangent", 53, 1, 48, 1))
sketch3.addConstraint(Sketcher.Constraint("Horizontal", 42))
sketch3.addConstraint(Sketcher.Constraint("Horizontal", 44))
sketch3.addConstraint(Sketcher.Constraint("Vertical", 46))
sketch3.addConstraint(Sketcher.Constraint("Coincident", 1, 3, -1, 1))
sketch3.addConstraint(Sketcher.Constraint("Coincident", 9, 3, -1, 1))
sketch3.addConstraint(Sketcher.Constraint("Coincident", 12, 3, -1, 1))
sketch3.addConstraint(Sketcher.Constraint("Coincident", 18, 3, -1, 1))
sketch3.addConstraint(Sketcher.Constraint("Coincident", 24, 3, -1, 1))
sketch3.addConstraint(Sketcher.Constraint("Coincident", 30, 3, -1, 1))
sketch3.addConstraint(Sketcher.Constraint("Coincident", 37, 3, -1, 1))
sketch3.addConstraint(Sketcher.Constraint("Coincident", 43, 3, -1, 1))
sketch3.addConstraint(Sketcher.Constraint("Coincident", 49, 3, -1, 1))
sketch3.addConstraint(Sketcher.Constraint("Equal", 3, 5))
sketch3.addConstraint(Sketcher.Constraint("Equal", 5, 7))
sketch3.addConstraint(Sketcher.Constraint("Equal", 1, 9))
sketch3.addConstraint(Sketcher.Constraint("Equal", 7, 11))
sketch3.addConstraint(Sketcher.Constraint("Equal", 9, 12))
sketch3.addConstraint(Sketcher.Constraint("Equal", 11, 14))
sketch3.addConstraint(Sketcher.Constraint("Equal", 14, 16))
sketch3.addConstraint(Sketcher.Constraint("Equal", 12, 18))
sketch3.addConstraint(Sketcher.Constraint("Equal", 16, 20))
sketch3.addConstraint(Sketcher.Constraint("Equal", 20, 22))
sketch3.addConstraint(Sketcher.Constraint("Equal", 18, 24))
sketch3.addConstraint(Sketcher.Constraint("Equal", 22, 26))
sketch3.addConstraint(Sketcher.Constraint("Equal", 26, 28))
sketch3.addConstraint(Sketcher.Constraint("Equal", 24, 30))
sketch3.addConstraint(Sketcher.Constraint("Equal", 28, 32))
sketch3.addConstraint(Sketcher.Constraint("Equal", 32, 34))
sketch3.addConstraint(Sketcher.Constraint("Equal", 30, 37))
sketch3.addConstraint(Sketcher.Constraint("Equal", 34, 39))
sketch3.addConstraint(Sketcher.Constraint("Equal", 39, 41))
sketch3.addConstraint(Sketcher.Constraint("Equal", 37, 43))
sketch3.addConstraint(Sketcher.Constraint("Equal", 41, 45))
sketch3.addConstraint(Sketcher.Constraint("Equal", 45, 47))
sketch3.addConstraint(Sketcher.Constraint("Equal", 43, 49))
sketch3.addConstraint(Sketcher.Constraint("Equal", 47, 51))
sketch3.addConstraint(Sketcher.Constraint("Equal", 51, 53))
sketch3.addConstraint(Sketcher.Constraint("Symmetric", 16, 3, 20, 3, -1))
sketch3.addConstraint(Sketcher.Constraint("Symmetric", 14, 3, 22, 3, -1))
sketch3.addConstraint(Sketcher.Constraint("Symmetric", 7, 3, 26, 3, -1))
sketch3.addConstraint(Sketcher.Constraint("Symmetric", 11, 3, 28, 3, -1))
sketch3.addConstraint(Sketcher.Constraint("Symmetric", 5, 3, 32, 3, -1))
sketch3.addConstraint(Sketcher.Constraint("Symmetric", 3, 3, 34, 3, -1))
sketch3.addConstraint(Sketcher.Constraint("Symmetric", 41, 3, 51, 3, -1))
sketch3.addConstraint(Sketcher.Constraint("Symmetric", 39, 3, 53, 3, -1))
sketch3.addConstraint(Sketcher.Constraint("Parallel", 0, 2))
sketch3.addConstraint(Sketcher.Constraint("Perpendicular", 2, 4))
sketch3.addConstraint(Sketcher.Constraint("Perpendicular", 6, 8))
sketch3.addConstraint(Sketcher.Constraint("Parallel", 8, 10))
sketch3.addConstraint(Sketcher.Constraint("Perpendicular", 13, 15))
sketch3.addConstraint(Sketcher.Constraint("Perpendicular", 15, 17))
sketch3.addConstraint(Sketcher.Constraint("Perpendicular", 19, 21))
sketch3.addConstraint(Sketcher.Constraint("Perpendicular", 21, 23))
sketch3.addConstraint(Sketcher.Constraint("Perpendicular", 25, 27))
sketch3.addConstraint(Sketcher.Constraint("Perpendicular", 27, 29))
sketch3.addConstraint(Sketcher.Constraint("Perpendicular", 31, 33))
sketch3.addConstraint(Sketcher.Constraint("Perpendicular", 33, 35))
sketch3.addConstraint(Sketcher.Constraint("Parallel", 36, 38))
sketch3.addConstraint(Sketcher.Constraint("Perpendicular", 38, 40))
sketch3.addConstraint(Sketcher.Constraint("Parallel", 48, 50))
sketch3.addConstraint(Sketcher.Constraint("Perpendicular", 50, 52))
sketch3.addConstraint(Sketcher.Constraint("Vertical", 42, 2, 43, 1))
sketch3.addConstraint(Sketcher.Constraint("Equal", 0, 2))
sketch3.addConstraint(Sketcher.Constraint("Equal", 4, 6))
sketch3.addConstraint(Sketcher.Constraint("Equal", 2, 8))
sketch3.addConstraint(Sketcher.Constraint("Equal", 8, 10))
sketch3.addConstraint(Sketcher.Constraint("Equal", 10, 13))
sketch3.addConstraint(Sketcher.Constraint("Equal", 6, 15))
sketch3.addConstraint(Sketcher.Constraint("Equal", 13, 17))
sketch3.addConstraint(Sketcher.Constraint("Equal", 35, 36))
sketch3.addConstraint(Sketcher.Constraint("Equal", 36, 38))
sketch3.addConstraint(Sketcher.Constraint("Equal", 33, 40))
sketch3.addConstraint(Sketcher.Constraint("Radius", 1, 46.0))
sketch3.addConstraint(Sketcher.Constraint("Radius", 3, 2.0))
sketch3.addConstraint(Sketcher.Constraint("Angle", 0, Q("-100 deg")))
sketch3.addConstraint(Sketcher.Constraint("Angle", 6, Q("30 deg")))
sketch3.addConstraint(Sketcher.Constraint("Angle", 13, Q("160 deg")))
sketch3.addConstraint(Sketcher.Constraint("Angle", 36, Q("140 deg")))
sketch3.addConstraint(Sketcher.Constraint("DistanceY", 46, 2, 46, 1, 16.1))
sketch3.addConstraint(Sketcher.Constraint("DistanceX", 45, 3, -1, 1, 32.0))
sketch3.addConstraint(Sketcher.Constraint("Distance", 4, 16.1))
sketch3.addConstraint(Sketcher.Constraint("DistanceX", -1, 1, 14, 3, 27.316902))
sketch3.setExpression("Constraints[126]", "Params.sketch3_radius")
sketch3.setExpression("Constraints[127]", "Params.sketch3_radius2")
sketch3.setExpression("Constraints[132]", "Params.sketch3_height")
sketch3.setExpression("Constraints[134]", "Params.sketch3_length")
pocket2 = body.newObject("PartDesign::Pocket", "Pocket001")
pocket2.Profile = sketch3
pocket2.setExpression("Length", "Params.pocket2_length")

# Sketch on an angled plane
sketch4 = body.newObject("Sketcher::SketchObject", "Sketch003")
sketch4.Placement = App.Placement(V(-9.897318, 0, 1.745164), App.Rotation(V(-0.173648178, 0, -0.984807753), V(0, 1, 0), V(0.984807753, 0, -0.173648178), "ZXY"))
sketch4.addGeometry(Part.Circle(V(40.6, -2, 0), V(0, 0, 1), 1.5), False)
sketch4.addConstraint(Sketcher.Constraint("Diameter", 0, 3.0))
sketch4.addConstraint(Sketcher.Constraint("DistanceX", -1, 1, 0, 3, 40.55))
sketch4.addConstraint(Sketcher.Constraint("DistanceY", 0, 3, -1, 1, 1.984578))
sketch4.setExpression("Constraints[0]", "Params.sketch4_diameter")
pad1 = body.newObject("PartDesign::Pad", "Pad")
pad1.Profile = sketch4
pad1.setExpression("Length", "Params.pad1_length")
doc.recompute()

polarpattern = body.newObject("PartDesign::PolarPattern", "PolarPattern")
polarpattern.Originals = [pad1]
polarpattern.Axis = (doc.getObject("Y_Axis"), [""])
polarpattern.Angle = 360
polarpattern.Occurrences = 9
body.Tip = polarpattern

# Sketch on XZ plane
sketch5 = body.newObject("Sketcher::SketchObject", "Sketch004")
sketch5.AttachmentSupport = (doc.getObject("XZ_Plane"), [""])
sketch5.MapMode = "FlatFace"
sketch5.AttachmentOffset = App.Placement(V(0, 0, 5.484578), App.Rotation())
sketch5.addGeometry(Part.Circle(V(0, 0, 0), V(0, 0, 1), 109), False)
sketch5.addConstraint(Sketcher.Constraint("Coincident", 0, 3, -1, 1))
sketch5.addConstraint(Sketcher.Constraint("Diameter", 0, 217.033251))
pocket3 = body.newObject("PartDesign::Pocket", "Pocket002")
pocket3.Profile = sketch5
pocket3.setExpression("Length", "Params.pocket3_length")

doc.recompute()
